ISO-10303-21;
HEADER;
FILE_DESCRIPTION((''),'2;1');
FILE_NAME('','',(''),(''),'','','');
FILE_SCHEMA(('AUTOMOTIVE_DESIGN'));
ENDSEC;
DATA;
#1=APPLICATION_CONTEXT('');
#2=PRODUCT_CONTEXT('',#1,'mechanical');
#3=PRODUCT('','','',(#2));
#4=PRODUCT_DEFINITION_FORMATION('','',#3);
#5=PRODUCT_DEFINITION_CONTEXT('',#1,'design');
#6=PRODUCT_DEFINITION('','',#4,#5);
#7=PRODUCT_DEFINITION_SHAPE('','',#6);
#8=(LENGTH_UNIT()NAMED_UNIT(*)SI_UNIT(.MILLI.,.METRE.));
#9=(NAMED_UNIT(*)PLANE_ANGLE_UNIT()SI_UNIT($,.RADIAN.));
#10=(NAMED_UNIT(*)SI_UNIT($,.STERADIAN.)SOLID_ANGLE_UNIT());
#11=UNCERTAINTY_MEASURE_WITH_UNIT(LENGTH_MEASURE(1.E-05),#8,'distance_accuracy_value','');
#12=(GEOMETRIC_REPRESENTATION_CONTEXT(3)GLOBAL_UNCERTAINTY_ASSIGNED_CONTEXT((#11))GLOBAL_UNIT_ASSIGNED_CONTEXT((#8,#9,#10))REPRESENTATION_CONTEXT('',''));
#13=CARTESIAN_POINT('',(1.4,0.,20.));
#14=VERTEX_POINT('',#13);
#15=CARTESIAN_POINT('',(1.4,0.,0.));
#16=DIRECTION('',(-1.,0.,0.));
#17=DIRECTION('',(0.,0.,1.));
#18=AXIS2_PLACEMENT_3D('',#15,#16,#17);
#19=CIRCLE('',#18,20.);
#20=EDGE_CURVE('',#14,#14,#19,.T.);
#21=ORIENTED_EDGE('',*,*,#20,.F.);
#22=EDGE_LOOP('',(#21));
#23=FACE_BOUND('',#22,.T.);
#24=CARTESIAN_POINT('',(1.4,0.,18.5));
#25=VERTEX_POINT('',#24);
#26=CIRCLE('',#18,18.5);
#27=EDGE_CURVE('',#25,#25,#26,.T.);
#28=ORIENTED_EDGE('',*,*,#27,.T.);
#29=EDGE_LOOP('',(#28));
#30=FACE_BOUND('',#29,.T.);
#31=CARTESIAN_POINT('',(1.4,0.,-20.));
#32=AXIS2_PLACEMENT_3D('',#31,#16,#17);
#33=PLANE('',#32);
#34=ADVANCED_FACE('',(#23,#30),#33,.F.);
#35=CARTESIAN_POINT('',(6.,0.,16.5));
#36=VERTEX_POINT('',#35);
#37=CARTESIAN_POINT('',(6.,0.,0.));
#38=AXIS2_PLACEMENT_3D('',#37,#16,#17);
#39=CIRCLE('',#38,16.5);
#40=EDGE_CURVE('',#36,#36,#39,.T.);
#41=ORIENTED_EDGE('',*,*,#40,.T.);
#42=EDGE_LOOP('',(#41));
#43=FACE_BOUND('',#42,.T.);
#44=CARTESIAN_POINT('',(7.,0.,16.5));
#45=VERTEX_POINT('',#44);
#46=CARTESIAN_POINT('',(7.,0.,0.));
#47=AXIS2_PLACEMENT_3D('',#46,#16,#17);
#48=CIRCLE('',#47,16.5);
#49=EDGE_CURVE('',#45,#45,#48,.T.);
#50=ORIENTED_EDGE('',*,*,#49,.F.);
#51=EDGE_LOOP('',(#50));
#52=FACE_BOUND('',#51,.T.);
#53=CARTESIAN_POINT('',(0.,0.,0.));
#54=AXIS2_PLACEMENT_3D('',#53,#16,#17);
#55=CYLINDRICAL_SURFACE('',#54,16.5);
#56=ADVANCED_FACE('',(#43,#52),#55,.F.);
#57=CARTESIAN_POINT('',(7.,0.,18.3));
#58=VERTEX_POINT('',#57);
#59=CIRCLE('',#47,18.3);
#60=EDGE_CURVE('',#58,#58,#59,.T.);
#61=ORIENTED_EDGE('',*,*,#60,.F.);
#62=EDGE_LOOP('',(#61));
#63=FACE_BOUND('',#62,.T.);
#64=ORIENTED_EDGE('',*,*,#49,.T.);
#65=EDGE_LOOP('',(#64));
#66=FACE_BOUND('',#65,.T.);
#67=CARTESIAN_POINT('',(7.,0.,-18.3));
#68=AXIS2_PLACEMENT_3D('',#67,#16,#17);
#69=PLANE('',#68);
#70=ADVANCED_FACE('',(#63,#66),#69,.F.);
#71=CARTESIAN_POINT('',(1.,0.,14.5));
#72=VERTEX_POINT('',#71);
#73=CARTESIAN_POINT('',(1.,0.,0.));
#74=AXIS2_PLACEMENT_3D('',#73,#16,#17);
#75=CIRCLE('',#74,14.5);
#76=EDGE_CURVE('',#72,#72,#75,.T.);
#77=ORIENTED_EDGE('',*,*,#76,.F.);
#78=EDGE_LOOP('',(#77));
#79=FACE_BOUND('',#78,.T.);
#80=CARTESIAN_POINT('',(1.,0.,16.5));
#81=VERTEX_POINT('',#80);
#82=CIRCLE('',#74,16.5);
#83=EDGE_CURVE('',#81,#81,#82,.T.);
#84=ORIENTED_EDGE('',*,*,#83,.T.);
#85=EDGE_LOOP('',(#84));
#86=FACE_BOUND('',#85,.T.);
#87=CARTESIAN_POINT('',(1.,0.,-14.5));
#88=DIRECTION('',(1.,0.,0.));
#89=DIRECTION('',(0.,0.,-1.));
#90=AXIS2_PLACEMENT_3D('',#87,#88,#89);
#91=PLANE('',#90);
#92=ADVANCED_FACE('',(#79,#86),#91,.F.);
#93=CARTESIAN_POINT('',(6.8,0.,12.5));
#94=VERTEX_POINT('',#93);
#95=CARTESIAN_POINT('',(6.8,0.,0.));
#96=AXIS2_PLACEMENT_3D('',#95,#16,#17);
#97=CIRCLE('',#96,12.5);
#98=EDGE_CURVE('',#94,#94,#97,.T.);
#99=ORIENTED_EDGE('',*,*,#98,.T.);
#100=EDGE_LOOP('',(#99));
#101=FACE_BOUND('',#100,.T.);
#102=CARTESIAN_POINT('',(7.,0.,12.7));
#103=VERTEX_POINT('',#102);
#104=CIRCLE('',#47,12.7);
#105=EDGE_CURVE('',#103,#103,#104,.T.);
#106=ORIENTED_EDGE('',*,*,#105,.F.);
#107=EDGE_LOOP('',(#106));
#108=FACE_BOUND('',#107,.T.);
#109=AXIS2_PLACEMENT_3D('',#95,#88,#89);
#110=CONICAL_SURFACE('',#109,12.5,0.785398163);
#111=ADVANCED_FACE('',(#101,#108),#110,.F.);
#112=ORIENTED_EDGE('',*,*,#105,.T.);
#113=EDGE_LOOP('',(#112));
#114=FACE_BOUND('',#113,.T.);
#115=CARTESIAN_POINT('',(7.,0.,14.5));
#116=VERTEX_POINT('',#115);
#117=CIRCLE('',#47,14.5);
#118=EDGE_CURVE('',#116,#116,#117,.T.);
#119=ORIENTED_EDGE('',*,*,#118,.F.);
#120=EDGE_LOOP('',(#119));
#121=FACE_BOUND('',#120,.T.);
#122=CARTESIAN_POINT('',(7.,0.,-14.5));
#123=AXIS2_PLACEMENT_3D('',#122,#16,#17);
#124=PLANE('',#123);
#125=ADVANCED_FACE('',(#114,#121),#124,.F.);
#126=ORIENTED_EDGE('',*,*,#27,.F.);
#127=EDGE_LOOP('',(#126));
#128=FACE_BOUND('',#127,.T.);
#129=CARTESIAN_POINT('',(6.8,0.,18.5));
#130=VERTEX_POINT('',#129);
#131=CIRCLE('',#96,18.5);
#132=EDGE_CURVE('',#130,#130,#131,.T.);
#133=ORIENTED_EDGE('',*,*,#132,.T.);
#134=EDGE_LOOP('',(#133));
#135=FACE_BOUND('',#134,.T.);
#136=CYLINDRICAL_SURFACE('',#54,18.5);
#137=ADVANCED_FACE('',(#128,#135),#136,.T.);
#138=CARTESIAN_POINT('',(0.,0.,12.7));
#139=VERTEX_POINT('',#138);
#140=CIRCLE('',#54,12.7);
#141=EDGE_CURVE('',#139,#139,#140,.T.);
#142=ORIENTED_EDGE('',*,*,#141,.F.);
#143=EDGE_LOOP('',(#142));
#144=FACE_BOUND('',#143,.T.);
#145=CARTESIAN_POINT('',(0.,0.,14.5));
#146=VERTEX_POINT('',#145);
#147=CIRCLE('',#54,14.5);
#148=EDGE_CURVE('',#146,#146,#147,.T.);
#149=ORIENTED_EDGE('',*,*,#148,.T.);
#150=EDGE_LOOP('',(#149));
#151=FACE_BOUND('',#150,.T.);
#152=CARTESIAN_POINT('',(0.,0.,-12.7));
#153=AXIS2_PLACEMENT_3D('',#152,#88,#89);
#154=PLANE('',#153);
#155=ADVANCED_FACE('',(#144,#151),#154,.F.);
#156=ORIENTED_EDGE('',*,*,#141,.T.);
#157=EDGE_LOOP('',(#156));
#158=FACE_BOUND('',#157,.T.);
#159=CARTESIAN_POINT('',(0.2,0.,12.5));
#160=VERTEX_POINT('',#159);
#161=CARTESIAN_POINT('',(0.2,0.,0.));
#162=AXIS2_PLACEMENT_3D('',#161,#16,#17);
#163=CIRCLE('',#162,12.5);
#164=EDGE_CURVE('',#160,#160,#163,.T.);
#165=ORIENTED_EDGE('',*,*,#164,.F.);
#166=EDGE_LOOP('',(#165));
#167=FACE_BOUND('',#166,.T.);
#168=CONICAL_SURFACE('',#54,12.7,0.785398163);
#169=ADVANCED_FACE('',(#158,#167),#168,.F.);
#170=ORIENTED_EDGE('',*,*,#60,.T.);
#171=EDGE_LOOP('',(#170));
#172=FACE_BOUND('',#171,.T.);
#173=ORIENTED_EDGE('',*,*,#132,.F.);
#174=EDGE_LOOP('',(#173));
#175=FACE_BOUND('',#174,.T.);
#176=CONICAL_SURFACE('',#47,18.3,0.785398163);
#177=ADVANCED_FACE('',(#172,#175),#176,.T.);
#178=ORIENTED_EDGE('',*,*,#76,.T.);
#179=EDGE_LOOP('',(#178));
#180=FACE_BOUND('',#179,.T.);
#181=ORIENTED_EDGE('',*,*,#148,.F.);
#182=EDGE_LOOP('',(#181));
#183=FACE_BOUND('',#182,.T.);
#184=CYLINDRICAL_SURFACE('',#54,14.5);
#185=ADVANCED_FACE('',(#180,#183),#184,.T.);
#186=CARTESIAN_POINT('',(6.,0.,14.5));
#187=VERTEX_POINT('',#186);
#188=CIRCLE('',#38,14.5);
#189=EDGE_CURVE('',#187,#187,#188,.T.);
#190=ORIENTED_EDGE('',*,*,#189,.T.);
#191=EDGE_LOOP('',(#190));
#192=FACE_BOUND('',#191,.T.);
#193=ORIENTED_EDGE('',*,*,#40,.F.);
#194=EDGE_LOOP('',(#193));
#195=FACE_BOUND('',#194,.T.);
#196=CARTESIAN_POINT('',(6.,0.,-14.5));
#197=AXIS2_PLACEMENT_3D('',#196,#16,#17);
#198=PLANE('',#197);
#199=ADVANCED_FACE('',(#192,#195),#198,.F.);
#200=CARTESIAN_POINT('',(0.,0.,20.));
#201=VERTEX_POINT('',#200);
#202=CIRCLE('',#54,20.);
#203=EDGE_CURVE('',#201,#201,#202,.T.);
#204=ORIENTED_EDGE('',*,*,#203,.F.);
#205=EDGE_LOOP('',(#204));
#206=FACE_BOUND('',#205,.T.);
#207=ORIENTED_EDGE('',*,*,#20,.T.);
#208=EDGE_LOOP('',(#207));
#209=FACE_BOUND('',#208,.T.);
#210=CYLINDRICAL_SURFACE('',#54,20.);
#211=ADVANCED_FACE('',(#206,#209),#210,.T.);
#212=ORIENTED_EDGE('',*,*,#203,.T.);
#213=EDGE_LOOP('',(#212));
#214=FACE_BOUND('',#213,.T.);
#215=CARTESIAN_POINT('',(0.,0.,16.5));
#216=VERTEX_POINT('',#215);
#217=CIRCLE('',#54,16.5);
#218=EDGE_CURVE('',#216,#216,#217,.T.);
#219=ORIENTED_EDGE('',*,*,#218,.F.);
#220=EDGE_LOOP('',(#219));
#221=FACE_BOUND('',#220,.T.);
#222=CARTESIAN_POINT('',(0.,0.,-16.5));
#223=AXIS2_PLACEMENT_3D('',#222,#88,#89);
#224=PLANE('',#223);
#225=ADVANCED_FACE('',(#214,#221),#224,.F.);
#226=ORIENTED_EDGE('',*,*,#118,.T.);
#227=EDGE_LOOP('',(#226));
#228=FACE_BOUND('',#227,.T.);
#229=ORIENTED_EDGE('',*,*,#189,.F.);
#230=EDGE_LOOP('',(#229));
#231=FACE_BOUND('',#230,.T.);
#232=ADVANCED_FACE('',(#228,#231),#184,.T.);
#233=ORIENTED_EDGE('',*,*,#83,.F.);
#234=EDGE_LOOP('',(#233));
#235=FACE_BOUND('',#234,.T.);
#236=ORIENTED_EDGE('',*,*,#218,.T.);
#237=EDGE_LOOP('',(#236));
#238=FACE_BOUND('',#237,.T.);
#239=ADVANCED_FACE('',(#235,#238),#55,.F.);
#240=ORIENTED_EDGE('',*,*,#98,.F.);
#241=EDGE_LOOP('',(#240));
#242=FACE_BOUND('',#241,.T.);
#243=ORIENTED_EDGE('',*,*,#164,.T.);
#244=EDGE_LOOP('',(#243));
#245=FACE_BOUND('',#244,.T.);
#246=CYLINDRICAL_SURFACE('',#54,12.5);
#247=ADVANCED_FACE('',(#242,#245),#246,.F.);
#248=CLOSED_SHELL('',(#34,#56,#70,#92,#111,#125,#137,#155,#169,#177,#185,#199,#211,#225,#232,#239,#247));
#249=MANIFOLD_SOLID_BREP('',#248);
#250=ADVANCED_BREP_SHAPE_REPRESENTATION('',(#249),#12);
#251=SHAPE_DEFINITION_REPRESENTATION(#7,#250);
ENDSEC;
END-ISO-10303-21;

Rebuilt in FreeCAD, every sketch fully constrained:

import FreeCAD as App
import Part
import Sketcher


def add_polygon(sketch, points):
    """Adds a closed chain of lines whose ends are joined by coincident constraints."""
    first, n = sketch.GeometryCount, len(points)
    for a, b in zip(points, points[1:] + points[:1]):
        sketch.addGeometry(Part.LineSegment(App.Vector(*a, 0), App.Vector(*b, 0)), False)
    for i in range(n):
        sketch.addConstraint(Sketcher.Constraint("Coincident", first + i, 2, first + (i + 1) % n, 1))

doc = App.newDocument("Part")
body = doc.addObject("PartDesign::Body", "Body")

# Sketch on XZ plane
sketch1 = body.newObject("Sketcher::SketchObject", "Sketch")
sketch1.AttachmentSupport = (doc.getObject("XZ_Plane"), [""])
sketch1.MapMode = "FlatFace"
add_polygon(sketch1, [(0, -14.5), (0, -12.7), (0.2, -12.5), (6.8, -12.5), (7, -12.7), (7, -14.5), (6, -14.5), (6, -16.5), (7, -16.5), (7, -18.3), (6.8, -18.5), (1.4, -18.5), (1.4, -20), (0, -20), (0, -16.5), (1, -16.5), (1, -14.5)])  # lines 0-16
sketch1.addConstraint(Sketcher.Constraint("Vertical", 0))
sketch1.addConstraint(Sketcher.Constraint("Horizontal", 2))
sketch1.addConstraint(Sketcher.Constraint("Vertical", 4))
sketch1.addConstraint(Sketcher.Constraint("Horizontal", 5))
sketch1.addConstraint(Sketcher.Constraint("Vertical", 6))
sketch1.addConstraint(Sketcher.Constraint("Horizontal", 7))
sketch1.addConstraint(Sketcher.Constraint("Vertical", 8))
sketch1.addConstraint(Sketcher.Constraint("Horizontal", 10))
sketch1.addConstraint(Sketcher.Constraint("Vertical", 11))
sketch1.addConstraint(Sketcher.Constraint("Horizontal", 12))
sketch1.addConstraint(Sketcher.Constraint("Vertical", 13))
sketch1.addConstraint(Sketcher.Constraint("Horizontal", 14))
sketch1.addConstraint(Sketcher.Constraint("Vertical", 15))
sketch1.addConstraint(Sketcher.Constraint("Horizontal", 16))
sketch1.addConstraint(Sketcher.Constraint("PointOnObject", 0, 2, -2))
sketch1.addConstraint(Sketcher.Constraint("PointOnObject", 12, 2, -2))
sketch1.addConstraint(Sketcher.Constraint("Perpendicular", 1, 3))
sketch1.addConstraint(Sketcher.Constraint("Perpendicular", 3, 9))
sketch1.addConstraint(Sketcher.Constraint("Horizontal", 0, 2, 3, 2))
sketch1.addConstraint(Sketcher.Constraint("Horizontal", 7, 2, 13, 2))
sketch1.addConstraint(Sketcher.Constraint("Horizontal", 5, 2, 15, 2))
sketch1.addConstraint(Sketcher.Constraint("Vertical", 4, 2, 7, 2))
sketch1.addConstraint(Sketcher.Constraint("Vertical", 2, 2, 9, 2))
sketch1.addConstraint(Sketcher.Constraint("Equal", 7, 14))
sketch1.addConstraint(Sketcher.Constraint("Equal", 4, 8))
sketch1.addConstraint(Sketcher.Constraint("Equal", 1, 3))
sketch1.addConstraint(Sketcher.Constraint("DistanceX", 5, 2, 5, 1, 1.0))
sketch1.addConstraint(Sketcher.Constraint("DistanceY", 6, 2, 6, 1, 2.0))
sketch1.addConstraint(Sketcher.Constraint("DistanceX", 2, 1, 2, 2, 6.6))
sketch1.addConstraint(Sketcher.Constraint("DistanceX", 10, 2, 10, 1, 5.4))
sketch1.addConstraint(Sketcher.Constraint("DistanceX", 12, 2, 12, 1, 1.4))
sketch1.addConstraint(Sketcher.Constraint("DistanceY", 0, 1, 0, 2, 1.8))
sketch1.addConstraint(Sketcher.Constraint("DistanceY", 11, 2, 11, 1, 1.5))
sketch1.addConstraint(Sketcher.Constraint("DistanceY", 11, 2, -1, 1, 20.0))
revolution = body.newObject("PartDesign::Revolution", "Revolution")
revolution.Profile = sketch1
revolution.ReferenceAxis = (sketch1, ["H_Axis"])
revolution.Angle = 360

doc.recompute()
